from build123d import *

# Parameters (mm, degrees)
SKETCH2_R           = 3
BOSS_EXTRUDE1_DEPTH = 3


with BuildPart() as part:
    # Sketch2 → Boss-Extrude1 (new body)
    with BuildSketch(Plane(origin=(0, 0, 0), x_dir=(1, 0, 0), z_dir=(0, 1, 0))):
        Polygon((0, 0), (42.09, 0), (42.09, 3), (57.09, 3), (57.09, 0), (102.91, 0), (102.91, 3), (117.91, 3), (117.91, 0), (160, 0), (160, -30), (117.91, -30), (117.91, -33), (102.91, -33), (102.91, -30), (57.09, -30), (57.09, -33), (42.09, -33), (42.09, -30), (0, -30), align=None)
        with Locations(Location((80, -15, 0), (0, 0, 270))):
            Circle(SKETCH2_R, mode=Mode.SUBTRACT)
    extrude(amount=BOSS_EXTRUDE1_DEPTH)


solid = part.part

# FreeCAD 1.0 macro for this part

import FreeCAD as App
import Part
import Sketcher

doc = App.newDocument("Part")
body = doc.addObject("PartDesign::Body", "Body")

sketch1 = body.newObject("Sketcher::SketchObject", "Sketch")
sketch1.AttachmentSupport = (doc.getObject("XZ_Plane"), [""])
sketch1.MapMode = "FlatFace"
sketch1.addGeometry(Part.LineSegment(App.Vector(42.1, 0, 0), App.Vector(0, 0, 0)), False)
sketch1.addGeometry(Part.LineSegment(App.Vector(0, 0, 0), App.Vector(0, 30, 0)), False)
sketch1.addGeometry(Part.LineSegment(App.Vector(0, 30, 0), App.Vector(42.1, 30, 0)), False)
sketch1.addGeometry(Part.LineSegment(App.Vector(42.1, 30, 0), App.Vector(42.1, 33, 0)), False)
sketch1.addGeometry(Part.LineSegment(App.Vector(42.1, 33, 0), App.Vector(57.1, 33, 0)), False)
sketch1.addGeometry(Part.LineSegment(App.Vector(57.1, 33, 0), App.Vector(57.1, 30, 0)), False)
sketch1.addGeometry(Part.LineSegment(App.Vector(57.1, 30, 0), App.Vector(102.9, 30, 0)), False)
sketch1.addGeometry(Part.LineSegment(App.Vector(102.9, 30, 0), App.Vector(102.9, 33, 0)), False)
sketch1.addGeometry(Part.LineSegment(App.Vector(102.9, 33, 0), App.Vector(117.9, 33, 0)), False)
sketch1.addGeometry(Part.LineSegment(App.Vector(117.9, 33, 0), App.Vector(117.9, 30, 0)), False)
sketch1.addGeometry(Part.LineSegment(App.Vector(117.9, 30, 0), App.Vector(160, 30, 0)), False)
sketch1.addGeometry(Part.LineSegment(App.Vector(160, 30, 0), App.Vector(160, 0, 0)), False)
sketch1.addGeometry(Part.LineSegment(App.Vector(160, 0, 0), App.Vector(117.9, 0, 0)), False)
sketch1.addGeometry(Part.LineSegment(App.Vector(117.9, 0, 0), App.Vector(117.9, -3, 0)), False)
sketch1.addGeometry(Part.LineSegment(App.Vector(117.9, -3, 0), App.Vector(102.9, -3, 0)), False)
sketch1.addGeometry(Part.LineSegment(App.Vector(102.9, -3, 0), App.Vector(102.9, 0, 0)), False)
sketch1.addGeometry(Part.LineSegment(App.Vector(102.9, 0, 0), App.Vector(57.1, 0, 0)), False)
sketch1.addGeometry(Part.LineSegment(App.Vector(57.1, 0, 0), App.Vector(57.1, -3, 0)), False)
sketch1.addGeometry(Part.LineSegment(App.Vector(57.1, -3, 0), App.Vector(42.1, -3, 0)), False)
sketch1.addGeometry(Part.LineSegment(App.Vector(42.1, -3, 0), App.Vector(42.1, 0, 0)), False)
sketch1.addGeometry(Part.Circle(App.Vector(80, 15, 0), App.Vector(0, 0, 1), 3), False)
sketch1.addConstraint(Sketcher.Constraint("Coincident", 0, 2, 1, 1))
sketch1.addConstraint(Sketcher.Constraint("Coincident", 1, 2, 2, 1))
sketch1.addConstraint(Sketcher.Constraint("Coincident", 2, 2, 3, 1))
sketch1.addConstraint(Sketcher.Constraint("Coincident", 3, 2, 4, 1))
sketch1.addConstraint(Sketcher.Constraint("Coincident", 4, 2, 5, 1))
sketch1.addConstraint(Sketcher.Constraint("Coincident", 5, 2, 6, 1))
sketch1.addConstraint(Sketcher.Constraint("Coincident", 6, 2, 7, 1))
sketch1.addConstraint(Sketcher.Constraint("Coincident", 7, 2, 8, 1))
sketch1.addConstraint(Sketcher.Constraint("Coincident", 8, 2, 9, 1))
sketch1.addConstraint(Sketcher.Constraint("Coincident", 9, 2, 10, 1))
sketch1.addConstraint(Sketcher.Constraint("Coincident", 10, 2, 11, 1))
sketch1.addConstraint(Sketcher.Constraint("Coincident", 11, 2, 12, 1))
sketch1.addConstraint(Sketcher.Constraint("Coincident", 12, 2, 13, 1))
sketch1.addConstraint(Sketcher.Constraint("Coincident", 13, 2, 14, 1))
sketch1.addConstraint(Sketcher.Constraint("Coincident", 14, 2, 15, 1))
sketch1.addConstraint(Sketcher.Constraint("Coincident", 15, 2, 16, 1))
sketch1.addConstraint(Sketcher.Constraint("Coincident", 16, 2, 17, 1))
sketch1.addConstraint(Sketcher.Constraint("Coincident", 17, 2, 18, 1))
sketch1.addConstraint(Sketcher.Constraint("Coincident", 18, 2, 19, 1))
sketch1.addConstraint(Sketcher.Constraint("Coincident", 19, 2, 0, 1))
sketch1.addConstraint(Sketcher.Constraint("Horizontal", 0))
sketch1.addConstraint(Sketcher.Constraint("Vertical", 1))
sketch1.addConstraint(Sketcher.Constraint("Horizontal", 2))
sketch1.addConstraint(Sketcher.Constraint("Vertical", 3))
sketch1.addConstraint(Sketcher.Constraint("Horizontal", 4))
sketch1.addConstraint(Sketcher.Constraint("Vertical", 5))
sketch1.addConstraint(Sketcher.Constraint("Horizontal", 6))
sketch1.addConstraint(Sketcher.Constraint("Vertical", 7))
sketch1.addConstraint(Sketcher.Constraint("Horizontal", 8))
sketch1.addConstraint(Sketcher.Constraint("Vertical", 9))
sketch1.addConstraint(Sketcher.Constraint("Horizontal", 10))
sketch1.addConstraint(Sketcher.Constraint("Vertical", 11))
sketch1.addConstraint(Sketcher.Constraint("Horizontal", 12))
sketch1.addConstraint(Sketcher.Constraint("Vertical", 13))
sketch1.addConstraint(Sketcher.Constraint("Horizontal", 14))
sketch1.addConstraint(Sketcher.Constraint("Vertical", 15))
sketch1.addConstraint(Sketcher.Constraint("Horizontal", 16))
sketch1.addConstraint(Sketcher.Constraint("Vertical", 17))
sketch1.addConstraint(Sketcher.Constraint("Horizontal", 18))
sketch1.addConstraint(Sketcher.Constraint("Vertical", 19))
sketch1.addConstraint(Sketcher.Constraint("Coincident", 0, 2, -1, 1))
sketch1.addConstraint(Sketcher.Constraint("PointOnObject", 11, 2, -1))
sketch1.addConstraint(Sketcher.Constraint("PointOnObject", 15, 2, -1))
sketch1.addConstraint(Sketcher.Constraint("Horizontal", 2, 2, 5, 2))
sketch1.addConstraint(Sketcher.Constraint("Horizontal", 4, 2, 7, 2))
sketch1.addConstraint(Sketcher.Constraint("Horizontal", 6, 2, 9, 2))
sketch1.addConstraint(Sketcher.Constraint("Horizontal", 14, 2, 17, 2))
sketch1.addConstraint(Sketcher.Constraint("Vertical", 9, 2, 12, 2))
sketch1.addConstraint(Sketcher.Constraint("Vertical", 7, 2, 14, 2))
sketch1.addConstraint(Sketcher.Constraint("Vertical", 5, 2, 16, 2))
sketch1.addConstraint(Sketcher.Constraint("Vertical", 3, 2, 18, 2))
sketch1.addConstraint(Sketcher.Constraint("Equal", 4, 8))
sketch1.addConstraint(Sketcher.Constraint("Equal", 2, 10))
sketch1.addConstraint(Sketcher.Constraint("Equal", 9, 13))
sketch1.addConstraint(Sketcher.Constraint("Diameter", 20, 6.0))
sketch1.addConstraint(Sketcher.Constraint("DistanceX", 4, 1, 4, 2, 15.0))
sketch1.addConstraint(Sketcher.Constraint("DistanceY", 1, 1, 1, 2, 30.0))
sketch1.addConstraint(Sketcher.Constraint("DistanceY", 3, 1, 3, 2, 3.0))
sketch1.addConstraint(Sketcher.Constraint("DistanceX", -1, 1, 20, 3, 80.0))
sketch1.addConstraint(Sketcher.Constraint("DistanceY", -1, 1, 20, 3, 15.0))
sketch1.addConstraint(Sketcher.Constraint("DistanceX", -1, 1, 10, 2, 160.0))
sketch1.addConstraint(Sketcher.Constraint("DistanceX", 0, 2, 0, 1, 42.09))
pad1 = body.newObject("PartDesign::Pad", "Pad")
pad1.Profile = sketch1
pad1.Length = 3
pad1.Reversed = True

doc.recompute()
